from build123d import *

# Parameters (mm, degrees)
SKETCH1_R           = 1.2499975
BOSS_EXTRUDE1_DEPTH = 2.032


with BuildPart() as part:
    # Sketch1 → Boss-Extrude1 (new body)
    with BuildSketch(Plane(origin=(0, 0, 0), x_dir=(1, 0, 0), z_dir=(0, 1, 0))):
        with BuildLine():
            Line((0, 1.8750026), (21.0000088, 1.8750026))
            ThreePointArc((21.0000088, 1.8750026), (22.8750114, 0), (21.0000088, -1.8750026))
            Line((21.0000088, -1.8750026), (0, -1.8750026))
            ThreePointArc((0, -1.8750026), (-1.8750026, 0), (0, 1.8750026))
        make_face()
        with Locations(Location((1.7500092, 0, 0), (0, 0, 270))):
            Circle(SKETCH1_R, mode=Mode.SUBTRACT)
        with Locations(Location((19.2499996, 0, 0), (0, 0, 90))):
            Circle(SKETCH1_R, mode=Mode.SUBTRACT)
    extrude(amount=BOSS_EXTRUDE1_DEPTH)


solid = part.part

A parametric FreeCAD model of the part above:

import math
import FreeCAD as App
import Part
import Sketcher

V = App.Vector
Q = App.Units.Quantity

doc = App.newDocument("Part")
body = doc.addObject("PartDesign::Body", "Body")

sketch1 = body.newObject("Sketcher::SketchObject", "Sketch")
sketch1.AttachmentSupport = (doc.getObject("XZ_Plane"), [""])
sketch1.MapMode = "FlatFace"
sketch1.addGeometry(Part.LineSegment(V(21.000009, -1.875003, 0), V(0, -1.875003, 0)), False)
sketch1.addGeometry(Part.ArcOfCircle(Part.Circle(V(0, 0, 0), V(0, 0, 1), 1.875003), math.radians(90), math.radians(270)), False)
sketch1.addGeometry(Part.LineSegment(V(0, 1.875003, 0), V(21.000009, 1.875003, 0)), False)
sketch1.addGeometry(Part.ArcOfCircle(Part.Circle(V(21.000009, 0, 0), V(0, 0, 1), 1.875003), math.radians(-90), math.radians(90)), False)
sketch1.addGeometry(Part.Circle(V(19.25, 0, 0), V(0, 0, 1), 1.249998), False)
sketch1.addGeometry(Part.Circle(V(1.750009, 0, 0), V(0, 0, 1), 1.249998), False)
sketch1.addConstraint(Sketcher.Constraint("Tangent", 0, 2, 1, 2))
sketch1.addConstraint(Sketcher.Constraint("Tangent", 1, 1, 2, 1))
sketch1.addConstraint(Sketcher.Constraint("Tangent", 2, 2, 3, 2))
sketch1.addConstraint(Sketcher.Constraint("Tangent", 3, 1, 0, 1))
sketch1.addConstraint(Sketcher.Constraint("Horizontal", 0))
sketch1.addConstraint(Sketcher.Constraint("Horizontal", 2))
sketch1.addConstraint(Sketcher.Constraint("Coincident", 1, 3, -1, 1))
sketch1.addConstraint(Sketcher.Constraint("Equal", 4, 5))
sketch1.addConstraint(Sketcher.Constraint("PointOnObject", 4, 3, -1))
sketch1.addConstraint(Sketcher.Constraint("PointOnObject", 5, 3, -1))
sketch1.addConstraint(Sketcher.Constraint("Diameter", 4, Q("2.499995 mm")))
sketch1.addConstraint(Sketcher.Constraint("Radius", 1, Q("1.875003 mm")))
sketch1.addConstraint(Sketcher.Constraint("DistanceX", 0, 2, 0, 1, Q("21.000009 mm")))
sketch1.addConstraint(Sketcher.Constraint("DistanceX", -1, 1, 4, 3, Q("19.25 mm")))
sketch1.addConstraint(Sketcher.Constraint("DistanceX", 5, 3, 3, 3, Q("19.25 mm")))
pad1 = body.newObject("PartDesign::Pad", "Pad")
pad1.Profile = sketch1
pad1.Length = Q("0.08 in")
pad1.Reversed = True

doc.recompute()
